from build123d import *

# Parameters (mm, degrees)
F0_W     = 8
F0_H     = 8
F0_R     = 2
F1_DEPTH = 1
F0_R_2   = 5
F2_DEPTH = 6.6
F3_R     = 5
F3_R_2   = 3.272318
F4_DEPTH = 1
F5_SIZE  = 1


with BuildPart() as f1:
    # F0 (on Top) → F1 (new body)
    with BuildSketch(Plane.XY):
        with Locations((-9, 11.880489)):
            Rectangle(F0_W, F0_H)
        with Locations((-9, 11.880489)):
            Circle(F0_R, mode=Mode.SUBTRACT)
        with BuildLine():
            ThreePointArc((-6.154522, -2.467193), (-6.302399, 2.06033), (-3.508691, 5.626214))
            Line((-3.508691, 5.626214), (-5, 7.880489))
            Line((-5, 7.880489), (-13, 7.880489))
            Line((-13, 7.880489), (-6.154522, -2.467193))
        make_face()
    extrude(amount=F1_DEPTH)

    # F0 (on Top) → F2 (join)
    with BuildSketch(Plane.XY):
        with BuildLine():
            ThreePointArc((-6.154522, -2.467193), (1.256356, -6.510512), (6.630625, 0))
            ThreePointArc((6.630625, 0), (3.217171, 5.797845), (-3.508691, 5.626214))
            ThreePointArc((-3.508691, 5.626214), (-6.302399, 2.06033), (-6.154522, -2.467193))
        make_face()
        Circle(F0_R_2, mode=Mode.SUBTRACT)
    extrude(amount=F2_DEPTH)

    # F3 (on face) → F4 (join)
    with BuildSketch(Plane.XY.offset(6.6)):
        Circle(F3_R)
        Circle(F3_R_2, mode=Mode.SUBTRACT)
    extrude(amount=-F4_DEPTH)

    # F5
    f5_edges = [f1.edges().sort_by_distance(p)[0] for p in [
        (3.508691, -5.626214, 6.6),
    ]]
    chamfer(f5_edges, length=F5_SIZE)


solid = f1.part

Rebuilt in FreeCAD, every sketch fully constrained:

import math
import FreeCAD as App
import Part
import Sketcher
from FreeCAD import Vector


def edges_at(feature, points):
    """Names of the edges that pass closest to the given points."""
    edges = feature.Shape.Edges
    near = lambda p: min(range(len(edges)), key=lambda i: edges[i].distToShape(Part.Vertex(*p))[0])
    return sorted({f"Edge{near(p) + 1}" for p in points})

doc = App.newDocument("Part")
body = doc.addObject("PartDesign::Body", "Body")

sketch1 = body.newObject("Sketcher::SketchObject", "Sketch")
sketch1.AttachmentSupport = (doc.getObject("XY_Plane"), [""])
sketch1.MapMode = "FlatFace"
sketch1.addGeometry([
    Part.LineSegment(Vector(-13, 15.9, 0), Vector(-13, 7.9, 0)),
    Part.LineSegment(Vector(-13, 7.9, 0), Vector(-6.2, -2.5, 0)),
    Part.ArcOfCircle(Part.Circle(Vector(0, 0, 0), Vector(0, 0, 1), 6.6), math.radians(122), math.radians(202)),
    Part.LineSegment(Vector(-3.5, 5.6, 0), Vector(-5, 7.9, 0)),
    Part.LineSegment(Vector(-5, 7.9, 0), Vector(-5, 15.9, 0)),
    Part.LineSegment(Vector(-5, 15.9, 0), Vector(-13, 15.9, 0)),
    Part.Circle(Vector(-9, 11.9, 0), Vector(0, 0, 1), 2),
], False)
sketch1.addConstraint([
    Sketcher.Constraint("Coincident", 0, 2, 1, 1),
    Sketcher.Constraint("Coincident", 1, 2, 2, 2),
    Sketcher.Constraint("Coincident", 2, 1, 3, 1),
    Sketcher.Constraint("Coincident", 3, 2, 4, 1),
    Sketcher.Constraint("Coincident", 4, 2, 5, 1),
    Sketcher.Constraint("Coincident", 5, 2, 0, 1),
    Sketcher.Constraint("Vertical", 0),
    Sketcher.Constraint("Vertical", 4),
    Sketcher.Constraint("Horizontal", 5),
    Sketcher.Constraint("Coincident", 2, 3, -1, 1),
    Sketcher.Constraint("Parallel", 1, 3),
    Sketcher.Constraint("Horizontal", 0, 2, 3, 2),
    Sketcher.Constraint("Equal", 5, 0),
    Sketcher.Constraint("Diameter", 6, 4.0),
    Sketcher.Constraint("DistanceX", 5, 2, 5, 1, 8.0),
    Sketcher.Constraint("DistanceX", 6, 3, -1, 1, 9.0),
    Sketcher.Constraint("DistanceX", 0, 2, -1, 1, 13.0),
    Sketcher.Constraint("DistanceY", 0, 2, 6, 3, 4.0),
    Sketcher.Constraint("Radius", 2, 6.630624),
    Sketcher.Constraint("Distance", 1, 12.407058),
    Sketcher.Constraint("DistanceY", -1, 1, 6, 3, 11.880489),
])
pad1 = body.newObject("PartDesign::Pad", "Pad")
pad1.Profile = sketch1
pad1.Length = 1

sketch2 = body.newObject("Sketcher::SketchObject", "Sketch001")
sketch2.AttachmentSupport = (doc.getObject("XY_Plane"), [""])
sketch2.MapMode = "FlatFace"
sketch2.addGeometry([
    Part.ArcOfCircle(Part.Circle(Vector(0, 0, 0), Vector(0, 0, 1), 7), math.radians(-158), math.radians(0)),
    Part.ArcOfCircle(Part.Circle(Vector(0, 0, 0), Vector(0, 0, 1), 7), math.radians(0), math.radians(122)),
    Part.ArcOfCircle(Part.Circle(Vector(0, 0, 0), Vector(0, 0, 1), 7), math.radians(122), math.radians(202)),
    Part.Circle(Vector(0, 0, 0), Vector(0, 0, 1), 5),
], False)
sketch2.addConstraint([
    Sketcher.Constraint("Tangent", 0, 2, 1, 1),
    Sketcher.Constraint("Tangent", 1, 2, 2, 1),
    Sketcher.Constraint("Tangent", 2, 2, 0, 1),
    Sketcher.Constraint("Coincident", 0, 3, -1, 1),
    Sketcher.Constraint("Coincident", 3, 3, -1, 1),
    Sketcher.Constraint("PointOnObject", 0, 2, -1),
    Sketcher.Constraint("Diameter", 3, 10.0),
    Sketcher.Constraint("Radius", 0, 6.630625),
    Sketcher.Constraint("DistanceX", 1, 2, -1, 1, 3.508691),
    Sketcher.Constraint("DistanceX", 2, 2, 2, 3, 6.154521),
])
pad2 = body.newObject("PartDesign::Pad", "Pad001")
pad2.Profile = sketch2
pad2.Length = 6.6

sketch3 = body.newObject("Sketcher::SketchObject", "Sketch002")
sketch3.AttachmentSupport = (doc.getObject("XY_Plane"), [""])
sketch3.MapMode = "FlatFace"
sketch3.AttachmentOffset = App.Placement(Vector(0, 0, 6.6), App.Rotation())
sketch3.addGeometry([
    Part.Circle(Vector(0, 0, 0), Vector(0, 0, 1), 5),
    Part.Circle(Vector(0, 0, 0), Vector(0, 0, 1), 3.3),
], False)
sketch3.addConstraint([
    Sketcher.Constraint("Coincident", 0, 3, -1, 1),
    Sketcher.Constraint("Coincident", 1, 3, -1, 1),
    Sketcher.Constraint("Diameter", 0, 10.0),
    Sketcher.Constraint("Diameter", 1, 6.544636),
])
pad3 = body.newObject("PartDesign::Pad", "Pad002")
pad3.Profile = sketch3
pad3.Length = 1
pad3.Reversed = True
doc.recompute()

chamfer = body.newObject("PartDesign::Chamfer", "Chamfer")
chamfer.Base = (pad3, edges_at(pad3, [(1.256, -6.511, 6.6)]))
chamfer.Size = 1

doc.recompute()
